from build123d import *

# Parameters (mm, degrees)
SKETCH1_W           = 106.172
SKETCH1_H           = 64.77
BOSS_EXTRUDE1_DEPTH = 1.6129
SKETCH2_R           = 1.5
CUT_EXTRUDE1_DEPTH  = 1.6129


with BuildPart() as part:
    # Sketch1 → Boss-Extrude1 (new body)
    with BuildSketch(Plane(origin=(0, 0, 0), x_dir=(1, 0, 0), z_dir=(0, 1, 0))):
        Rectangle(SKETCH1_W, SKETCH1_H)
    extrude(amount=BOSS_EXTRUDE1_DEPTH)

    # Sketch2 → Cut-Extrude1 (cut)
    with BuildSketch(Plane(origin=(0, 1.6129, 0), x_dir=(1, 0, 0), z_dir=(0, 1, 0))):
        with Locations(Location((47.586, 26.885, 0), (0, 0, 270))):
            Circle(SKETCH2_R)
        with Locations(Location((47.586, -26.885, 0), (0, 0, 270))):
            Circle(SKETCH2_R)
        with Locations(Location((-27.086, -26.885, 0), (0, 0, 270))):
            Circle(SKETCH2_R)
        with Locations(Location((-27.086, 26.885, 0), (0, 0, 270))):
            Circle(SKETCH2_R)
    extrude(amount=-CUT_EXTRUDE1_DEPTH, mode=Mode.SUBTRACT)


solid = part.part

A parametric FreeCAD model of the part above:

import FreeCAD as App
import Part
import Sketcher
from FreeCAD import Vector
Q = App.Units.Quantity


def add_polygon(sketch, points):
    """Adds a closed chain of lines whose ends are joined by coincident constraints."""
    first, n = sketch.GeometryCount, len(points)
    for a, b in zip(points, points[1:] + points[:1]):
        sketch.addGeometry(Part.LineSegment(App.Vector(*a, 0), App.Vector(*b, 0)), False)
    for i in range(n):
        sketch.addConstraint(Sketcher.Constraint("Coincident", first + i, 2, first + (i + 1) % n, 1))

doc = App.newDocument("Part")
body = doc.addObject("PartDesign::Body", "Body")

sketch1 = body.newObject("Sketcher::SketchObject", "Sketch")
sketch1.AttachmentSupport = (doc.getObject("XZ_Plane"), [""])
sketch1.MapMode = "FlatFace"
add_polygon(sketch1, [(-53, -32), (-53, 32), (53, 32), (53, -32)])
sketch1.addConstraint([
    Sketcher.Constraint("Vertical", 0),
    Sketcher.Constraint("Horizontal", 1),
    Sketcher.Constraint("Vertical", 2),
    Sketcher.Constraint("Horizontal", 3),
    Sketcher.Constraint("Symmetric", 0, 2, 2, 2, -1, 1),
    Sketcher.Constraint("DistanceX", 1, 1, 1, 2, Q("4.18 in")),
    Sketcher.Constraint("DistanceY", 0, 1, 0, 2, Q("2.55 in")),
])
pad1 = body.newObject("PartDesign::Pad", "Pad")
pad1.Profile = sketch1
pad1.Length = Q("0.0635 in")
pad1.Reversed = True

sketch2 = body.newObject("Sketcher::SketchObject", "Sketch001")
sketch2.AttachmentSupport = (doc.getObject("XZ_Plane"), [""])
sketch2.MapMode = "FlatFace"
sketch2.AttachmentOffset = App.Placement(Vector(0, 0, -0.0635 * 25.4), App.Rotation())
sketch2.addGeometry([
    Part.Circle(Vector(47.6, -26.9, 0), Vector(0, 0, 1), 1.5),
    Part.Circle(Vector(47.6, 26.9, 0), Vector(0, 0, 1), 1.5),
    Part.Circle(Vector(-27.1, 26.9, 0), Vector(0, 0, 1), 1.5),
    Part.Circle(Vector(-27.1, -26.9, 0), Vector(0, 0, 1), 1.5),
], False)
sketch2.addConstraint([
    Sketcher.Constraint("Equal", 0, 1),
    Sketcher.Constraint("Equal", 1, 2),
    Sketcher.Constraint("Equal", 2, 3),
    Sketcher.Constraint("Symmetric", 0, 3, 1, 3, -1),
    Sketcher.Constraint("Symmetric", 2, 3, 3, 3, -1),
    Sketcher.Constraint("Horizontal", 1, 3, 2, 3),
    Sketcher.Constraint("Diameter", 0, 3.0),
    Sketcher.Constraint("DistanceX", -1, 1, 0, 3, 47.586),
    Sketcher.Constraint("DistanceY", 0, 3, -1, 1, 26.885),
    Sketcher.Constraint("DistanceX", 2, 3, -1, 1, 27.086),
])
pocket1 = body.newObject("PartDesign::Pocket", "Pocket")
pocket1.Profile = sketch2
pocket1.Length = Q("0.0635 in")
pocket1.Reversed = True

doc.recompute()
